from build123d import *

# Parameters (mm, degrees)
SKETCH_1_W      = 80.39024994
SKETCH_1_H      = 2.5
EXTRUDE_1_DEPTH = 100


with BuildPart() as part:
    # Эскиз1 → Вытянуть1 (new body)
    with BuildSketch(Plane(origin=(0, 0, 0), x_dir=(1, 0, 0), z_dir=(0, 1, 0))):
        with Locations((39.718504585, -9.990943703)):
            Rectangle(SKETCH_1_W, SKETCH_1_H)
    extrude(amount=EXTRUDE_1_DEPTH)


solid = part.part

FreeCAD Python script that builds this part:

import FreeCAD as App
import Part
import Sketcher

V = App.Vector
Q = App.Units.Quantity


def add_polygon(sketch, points):
    """Adds a closed chain of lines whose ends are joined by coincident constraints."""
    first, n = sketch.GeometryCount, len(points)
    for a, b in zip(points, points[1:] + points[:1]):
        sketch.addGeometry(Part.LineSegment(App.Vector(*a, 0), App.Vector(*b, 0)), False)
    for i in range(n):
        sketch.addConstraint(Sketcher.Constraint("Coincident", first + i, 2, first + (i + 1) % n, 1))

doc = App.newDocument("Part")
body = doc.addObject("PartDesign::Body", "Body")

sketch1 = doc.addObject("Sketcher::SketchObject", "Sketch")
body.addObject(sketch1)
sketch1.AttachmentSupport = (doc.XZ_Plane, [""])
sketch1.MapMode = "FlatFace"
add_polygon(sketch1, [(-0.5, 8.7), (-0.5, 11.2), (79.9, 11.2), (79.9, 8.7)])
sketch1.addConstraint(Sketcher.Constraint("Vertical", 0))
sketch1.addConstraint(Sketcher.Constraint("Horizontal", 1))
sketch1.addConstraint(Sketcher.Constraint("Vertical", 2))
sketch1.addConstraint(Sketcher.Constraint("Horizontal", 3))
sketch1.addConstraint(Sketcher.Constraint("DistanceY", 0, 1, 0, 2, Q("2.5 mm")))
sketch1.addConstraint(Sketcher.Constraint("DistanceX", 1, 1, 1, 2, Q("80.39025 mm")))
sketch1.addConstraint(Sketcher.Constraint("DistanceX", 0, 2, -1, 1, Q("0.47662 mm")))
sketch1.addConstraint(Sketcher.Constraint("DistanceY", -1, 1, 0, 2, Q("11.240944 mm")))
pad1 = doc.addObject("PartDesign::Pad", "Pad")
body.addObject(pad1)
pad1.Profile = sketch1
pad1.Length = 100
pad1.Reversed = True

doc.recompute()
